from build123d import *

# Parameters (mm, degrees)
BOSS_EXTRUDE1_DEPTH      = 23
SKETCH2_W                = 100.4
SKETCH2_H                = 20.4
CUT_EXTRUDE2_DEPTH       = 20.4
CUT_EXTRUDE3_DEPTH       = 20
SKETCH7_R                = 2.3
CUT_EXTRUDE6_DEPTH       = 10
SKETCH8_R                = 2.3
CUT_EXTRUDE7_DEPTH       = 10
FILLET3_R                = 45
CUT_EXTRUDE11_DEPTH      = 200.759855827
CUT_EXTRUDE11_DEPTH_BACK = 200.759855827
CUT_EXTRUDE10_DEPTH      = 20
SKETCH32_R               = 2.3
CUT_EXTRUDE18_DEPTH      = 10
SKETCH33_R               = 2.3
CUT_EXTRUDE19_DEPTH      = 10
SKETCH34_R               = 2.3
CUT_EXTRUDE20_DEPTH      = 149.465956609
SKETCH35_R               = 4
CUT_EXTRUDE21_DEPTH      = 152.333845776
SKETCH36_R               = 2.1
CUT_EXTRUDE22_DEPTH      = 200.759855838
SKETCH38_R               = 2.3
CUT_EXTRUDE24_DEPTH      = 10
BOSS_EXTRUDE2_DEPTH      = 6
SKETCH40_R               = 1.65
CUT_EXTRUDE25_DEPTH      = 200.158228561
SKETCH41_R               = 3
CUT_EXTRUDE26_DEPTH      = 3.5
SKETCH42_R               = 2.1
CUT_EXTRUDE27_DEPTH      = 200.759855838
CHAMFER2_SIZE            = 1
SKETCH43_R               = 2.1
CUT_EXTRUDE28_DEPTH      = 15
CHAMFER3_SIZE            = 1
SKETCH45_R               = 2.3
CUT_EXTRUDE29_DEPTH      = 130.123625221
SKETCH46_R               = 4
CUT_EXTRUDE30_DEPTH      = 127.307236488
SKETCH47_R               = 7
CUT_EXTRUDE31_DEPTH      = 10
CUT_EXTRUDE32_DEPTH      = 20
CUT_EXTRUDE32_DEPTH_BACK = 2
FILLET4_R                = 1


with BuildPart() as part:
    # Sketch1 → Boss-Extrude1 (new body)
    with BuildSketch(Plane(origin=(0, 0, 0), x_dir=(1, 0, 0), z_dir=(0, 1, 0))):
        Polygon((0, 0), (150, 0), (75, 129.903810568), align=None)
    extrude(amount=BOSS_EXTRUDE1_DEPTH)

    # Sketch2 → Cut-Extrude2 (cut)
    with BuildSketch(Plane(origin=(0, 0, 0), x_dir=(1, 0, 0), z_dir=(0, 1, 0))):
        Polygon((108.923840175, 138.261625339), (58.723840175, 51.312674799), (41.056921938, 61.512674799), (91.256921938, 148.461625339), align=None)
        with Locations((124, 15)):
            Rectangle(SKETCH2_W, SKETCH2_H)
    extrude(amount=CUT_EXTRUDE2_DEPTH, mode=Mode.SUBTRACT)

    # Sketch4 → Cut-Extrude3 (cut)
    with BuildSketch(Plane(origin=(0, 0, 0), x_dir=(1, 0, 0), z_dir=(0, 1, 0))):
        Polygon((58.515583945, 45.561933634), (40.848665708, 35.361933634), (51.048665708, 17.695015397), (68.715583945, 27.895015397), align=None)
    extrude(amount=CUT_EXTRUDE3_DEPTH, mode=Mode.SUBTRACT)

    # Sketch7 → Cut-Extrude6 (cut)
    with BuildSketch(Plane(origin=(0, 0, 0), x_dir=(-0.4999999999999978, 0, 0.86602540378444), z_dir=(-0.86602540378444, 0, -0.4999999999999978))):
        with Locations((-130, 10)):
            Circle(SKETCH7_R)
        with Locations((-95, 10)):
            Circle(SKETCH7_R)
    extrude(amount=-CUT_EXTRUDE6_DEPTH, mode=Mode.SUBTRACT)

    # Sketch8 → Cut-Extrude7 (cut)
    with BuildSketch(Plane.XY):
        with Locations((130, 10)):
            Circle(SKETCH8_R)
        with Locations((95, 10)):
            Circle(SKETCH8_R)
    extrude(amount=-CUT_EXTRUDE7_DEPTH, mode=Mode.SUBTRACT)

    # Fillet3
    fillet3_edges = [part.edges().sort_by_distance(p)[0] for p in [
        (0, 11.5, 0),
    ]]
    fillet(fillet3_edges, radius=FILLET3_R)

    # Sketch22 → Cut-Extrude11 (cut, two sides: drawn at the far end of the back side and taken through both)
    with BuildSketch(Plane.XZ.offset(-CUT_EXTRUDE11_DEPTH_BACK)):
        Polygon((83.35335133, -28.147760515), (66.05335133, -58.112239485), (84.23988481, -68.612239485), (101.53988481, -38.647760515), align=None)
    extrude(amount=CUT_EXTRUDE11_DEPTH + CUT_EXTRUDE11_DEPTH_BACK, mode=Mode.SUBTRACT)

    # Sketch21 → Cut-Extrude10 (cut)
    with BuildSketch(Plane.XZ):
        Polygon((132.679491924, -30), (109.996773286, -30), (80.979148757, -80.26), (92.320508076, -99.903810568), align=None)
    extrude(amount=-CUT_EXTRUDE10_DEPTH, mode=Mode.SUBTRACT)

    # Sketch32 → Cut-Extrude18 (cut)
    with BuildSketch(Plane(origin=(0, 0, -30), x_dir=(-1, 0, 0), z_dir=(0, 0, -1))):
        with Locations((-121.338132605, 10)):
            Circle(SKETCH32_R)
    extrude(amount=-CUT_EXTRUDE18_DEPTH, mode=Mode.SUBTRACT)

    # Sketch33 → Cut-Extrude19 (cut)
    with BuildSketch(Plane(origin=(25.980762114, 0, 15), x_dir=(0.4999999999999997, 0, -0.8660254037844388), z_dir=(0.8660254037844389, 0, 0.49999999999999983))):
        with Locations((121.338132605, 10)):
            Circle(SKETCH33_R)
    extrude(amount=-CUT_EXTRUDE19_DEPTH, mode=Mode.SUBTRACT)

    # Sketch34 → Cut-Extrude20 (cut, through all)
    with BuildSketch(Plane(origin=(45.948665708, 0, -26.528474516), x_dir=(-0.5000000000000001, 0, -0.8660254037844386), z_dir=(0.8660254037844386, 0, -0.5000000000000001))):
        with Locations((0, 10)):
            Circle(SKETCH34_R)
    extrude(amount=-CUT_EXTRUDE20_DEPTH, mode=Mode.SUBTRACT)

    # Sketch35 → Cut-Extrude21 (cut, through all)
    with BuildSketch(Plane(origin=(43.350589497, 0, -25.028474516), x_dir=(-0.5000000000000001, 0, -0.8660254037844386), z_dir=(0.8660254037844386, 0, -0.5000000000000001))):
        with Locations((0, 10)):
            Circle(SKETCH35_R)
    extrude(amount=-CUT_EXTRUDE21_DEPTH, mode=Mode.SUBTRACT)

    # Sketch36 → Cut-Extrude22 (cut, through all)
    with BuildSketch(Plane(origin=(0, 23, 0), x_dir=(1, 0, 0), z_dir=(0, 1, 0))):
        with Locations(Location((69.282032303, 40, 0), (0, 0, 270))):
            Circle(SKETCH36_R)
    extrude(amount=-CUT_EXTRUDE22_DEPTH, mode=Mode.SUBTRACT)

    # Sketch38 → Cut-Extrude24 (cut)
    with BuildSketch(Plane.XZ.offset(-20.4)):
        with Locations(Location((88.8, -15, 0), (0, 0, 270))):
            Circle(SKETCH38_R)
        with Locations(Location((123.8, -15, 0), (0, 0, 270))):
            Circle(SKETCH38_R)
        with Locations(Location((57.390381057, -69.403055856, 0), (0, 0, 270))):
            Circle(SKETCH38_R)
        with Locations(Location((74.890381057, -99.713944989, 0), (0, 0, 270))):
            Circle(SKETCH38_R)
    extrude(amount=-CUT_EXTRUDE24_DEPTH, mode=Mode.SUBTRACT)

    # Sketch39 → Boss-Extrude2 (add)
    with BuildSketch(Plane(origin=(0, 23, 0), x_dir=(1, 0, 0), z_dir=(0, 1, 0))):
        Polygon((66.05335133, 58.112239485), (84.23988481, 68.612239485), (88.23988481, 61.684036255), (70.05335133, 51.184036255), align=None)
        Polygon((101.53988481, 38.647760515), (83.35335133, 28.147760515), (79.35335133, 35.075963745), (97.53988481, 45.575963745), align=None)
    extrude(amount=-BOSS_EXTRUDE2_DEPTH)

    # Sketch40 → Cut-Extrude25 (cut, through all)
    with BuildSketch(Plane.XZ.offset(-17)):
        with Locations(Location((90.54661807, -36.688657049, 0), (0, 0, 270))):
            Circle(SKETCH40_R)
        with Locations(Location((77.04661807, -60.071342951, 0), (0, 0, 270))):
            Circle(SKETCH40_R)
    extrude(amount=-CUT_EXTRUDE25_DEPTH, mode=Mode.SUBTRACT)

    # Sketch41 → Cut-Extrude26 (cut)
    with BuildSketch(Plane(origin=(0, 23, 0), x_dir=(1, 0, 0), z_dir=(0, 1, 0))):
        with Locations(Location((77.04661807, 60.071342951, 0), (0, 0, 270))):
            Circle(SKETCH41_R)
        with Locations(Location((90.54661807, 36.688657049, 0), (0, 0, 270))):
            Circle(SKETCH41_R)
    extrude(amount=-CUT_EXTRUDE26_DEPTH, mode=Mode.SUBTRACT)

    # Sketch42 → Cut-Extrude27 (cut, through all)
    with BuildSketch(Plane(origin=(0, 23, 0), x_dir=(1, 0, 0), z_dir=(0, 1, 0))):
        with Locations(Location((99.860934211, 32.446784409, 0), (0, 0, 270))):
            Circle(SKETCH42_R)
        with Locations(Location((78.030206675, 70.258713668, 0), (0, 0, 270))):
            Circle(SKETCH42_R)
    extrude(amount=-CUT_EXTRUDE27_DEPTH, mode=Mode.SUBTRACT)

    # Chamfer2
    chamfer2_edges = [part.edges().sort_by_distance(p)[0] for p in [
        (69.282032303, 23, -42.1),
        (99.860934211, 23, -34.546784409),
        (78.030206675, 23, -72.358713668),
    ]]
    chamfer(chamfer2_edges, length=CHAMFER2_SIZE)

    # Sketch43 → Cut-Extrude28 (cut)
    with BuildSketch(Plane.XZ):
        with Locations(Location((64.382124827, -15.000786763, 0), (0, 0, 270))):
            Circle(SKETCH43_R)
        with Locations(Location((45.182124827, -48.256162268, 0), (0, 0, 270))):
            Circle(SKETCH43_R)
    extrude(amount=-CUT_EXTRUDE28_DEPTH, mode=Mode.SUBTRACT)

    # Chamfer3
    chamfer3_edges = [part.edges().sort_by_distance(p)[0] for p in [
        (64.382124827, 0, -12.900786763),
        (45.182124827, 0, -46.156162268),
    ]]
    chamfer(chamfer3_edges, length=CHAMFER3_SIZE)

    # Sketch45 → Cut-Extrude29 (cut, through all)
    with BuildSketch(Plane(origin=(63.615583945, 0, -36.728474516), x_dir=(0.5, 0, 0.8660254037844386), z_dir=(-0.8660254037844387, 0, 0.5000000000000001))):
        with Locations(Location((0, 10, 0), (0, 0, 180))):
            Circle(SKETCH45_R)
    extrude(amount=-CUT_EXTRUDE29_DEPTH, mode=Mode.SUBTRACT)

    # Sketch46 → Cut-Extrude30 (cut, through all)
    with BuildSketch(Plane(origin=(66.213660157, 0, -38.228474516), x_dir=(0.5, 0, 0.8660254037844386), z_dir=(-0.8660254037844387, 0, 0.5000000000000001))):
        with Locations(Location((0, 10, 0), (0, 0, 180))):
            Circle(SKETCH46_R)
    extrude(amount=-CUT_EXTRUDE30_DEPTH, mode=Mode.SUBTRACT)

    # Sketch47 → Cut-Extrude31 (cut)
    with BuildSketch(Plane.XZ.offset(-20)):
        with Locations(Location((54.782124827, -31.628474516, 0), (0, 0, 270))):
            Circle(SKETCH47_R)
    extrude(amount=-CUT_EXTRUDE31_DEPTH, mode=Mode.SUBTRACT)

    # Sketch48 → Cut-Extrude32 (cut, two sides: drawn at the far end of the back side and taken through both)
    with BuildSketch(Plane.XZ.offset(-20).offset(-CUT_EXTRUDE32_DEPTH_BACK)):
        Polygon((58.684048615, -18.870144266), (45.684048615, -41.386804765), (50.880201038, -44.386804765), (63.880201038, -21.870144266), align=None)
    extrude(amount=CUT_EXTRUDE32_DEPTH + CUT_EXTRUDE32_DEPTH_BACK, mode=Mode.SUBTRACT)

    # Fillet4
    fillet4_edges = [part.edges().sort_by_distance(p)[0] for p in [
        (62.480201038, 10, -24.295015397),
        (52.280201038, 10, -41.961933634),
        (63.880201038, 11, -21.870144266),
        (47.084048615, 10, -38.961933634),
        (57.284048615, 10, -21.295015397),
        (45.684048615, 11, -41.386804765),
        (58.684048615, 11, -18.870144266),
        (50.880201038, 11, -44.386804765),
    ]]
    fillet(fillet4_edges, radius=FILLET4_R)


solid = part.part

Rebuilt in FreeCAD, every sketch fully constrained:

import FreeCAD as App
import Part
import Sketcher
Q = App.Units.Quantity


def edges_at(feature, points):
    """Names of the edges that pass closest to the given points."""
    edges = feature.Shape.Edges
    near = lambda p: min(range(len(edges)), key=lambda i: edges[i].distToShape(Part.Vertex(*p))[0])
    return sorted({f"Edge{near(p) + 1}" for p in points})


def add_polygon(sketch, points):
    """Adds a closed chain of lines whose ends are joined by coincident constraints."""
    first, n = sketch.GeometryCount, len(points)
    for a, b in zip(points, points[1:] + points[:1]):
        sketch.addGeometry(Part.LineSegment(App.Vector(*a, 0), App.Vector(*b, 0)), False)
    for i in range(n):
        sketch.addConstraint(Sketcher.Constraint("Coincident", first + i, 2, first + (i + 1) % n, 1))

doc = App.newDocument("Part")
body = doc.addObject("PartDesign::Body", "Body")

sketch1 = body.newObject("Sketcher::SketchObject", "Sketch")
sketch1.AttachmentSupport = (doc.getObject("XZ_Plane"), [""])
sketch1.MapMode = "FlatFace"
add_polygon(sketch1, [(0, 0), (150, 0), (75, -129.903811)])
sketch1.addConstraint([
    Sketcher.Constraint("Horizontal", 0),
    Sketcher.Constraint("Coincident", 2, 2, -1, 1),
    Sketcher.Constraint("Equal", 1, 2),
    Sketcher.Constraint("DistanceX", 0, 1, 0, 2, 150.0),
    Sketcher.Constraint("Angle", 1, Q("-120 deg")),
])
pad1 = body.newObject("PartDesign::Pad", "Pad")
pad1.Profile = sketch1
pad1.Length = 23
pad1.Reversed = True

sketch2 = body.newObject("Sketcher::SketchObject", "Sketch001")
sketch2.AttachmentSupport = (doc.getObject("XZ_Plane"), [""])
sketch2.MapMode = "FlatFace"
add_polygon(sketch2, [(58.72384, -51.312675), (108.92384, -138.261625), (91.256922, -148.461625), (41.056922, -61.512675)])
add_polygon(sketch2, [(73.8, -25.2), (73.8, -4.8), (174.2, -4.8), (174.2, -25.2)])
sketch2.addConstraint([
    Sketcher.Constraint("Vertical", 4),
    Sketcher.Constraint("Horizontal", 5),
    Sketcher.Constraint("Vertical", 6),
    Sketcher.Constraint("Horizontal", 7),
    Sketcher.Constraint("Perpendicular", 0, 1),
    Sketcher.Constraint("Perpendicular", 1, 2),
    Sketcher.Constraint("Perpendicular", 2, 3),
    Sketcher.Constraint("Angle", 0, Q("-60 deg")),
    Sketcher.Constraint("DistanceX", 5, 1, 5, 2, 100.4),
    Sketcher.Constraint("DistanceY", 4, 1, 4, 2, 20.4),
    Sketcher.Constraint("Distance", 0, 100.4),
    Sketcher.Constraint("Distance", 1, 20.4),
    Sketcher.Constraint("DistanceX", -1, 1, 4, 2, 73.8),
    Sketcher.Constraint("DistanceY", 4, 2, -1, 1, 4.8),
    Sketcher.Constraint("DistanceX", -1, 1, 0, 2, 108.92384),
    Sketcher.Constraint("DistanceY", 0, 2, -1, 1, 138.261625),
])
pocket1 = body.newObject("PartDesign::Pocket", "Pocket")
pocket1.Profile = sketch2
pocket1.Length = 20.4

sketch3 = body.newObject("Sketcher::SketchObject", "Sketch002")
sketch3.AttachmentSupport = (doc.getObject("XZ_Plane"), [""])
sketch3.MapMode = "FlatFace"
add_polygon(sketch3, [(58.515584, -45.561934), (40.848666, -35.361934), (51.048666, -17.695015), (68.715584, -27.895015)])
sketch3.addConstraint([
    Sketcher.Constraint("Perpendicular", 0, 1),
    Sketcher.Constraint("Perpendicular", 1, 2),
    Sketcher.Constraint("Perpendicular", 2, 3),
    Sketcher.Constraint("Equal", 0, 1),
    Sketcher.Constraint("Angle", 0, Q("150 deg")),
    Sketcher.Constraint("Distance", 0, 20.4),
    Sketcher.Constraint("DistanceX", -1, 1, 0, 2, 40.848666),
    Sketcher.Constraint("DistanceY", 0, 2, -1, 1, 35.361934),
])
pocket2 = body.newObject("PartDesign::Pocket", "Pocket001")
pocket2.Profile = sketch3
pocket2.Length = 20

sketch4 = body.newObject("Sketcher::SketchObject", "Sketch003")
sketch4.Placement = App.Placement(App.Vector(0, 0, 0), App.Rotation(App.Vector(-0.5, 0, 0.866025404), App.Vector(0, 1, 0), App.Vector(-0.866025404, 0, -0.5), "ZXY"))
sketch4.addGeometry([
    Part.Circle(App.Vector(-130, 10, 0), App.Vector(0, 0, 1), 2.3),
    Part.Circle(App.Vector(-95, 10, 0), App.Vector(0, 0, 1), 2.3),
], False)
sketch4.addConstraint([
    Sketcher.Constraint("Equal", 0, 1),
    Sketcher.Constraint("Horizontal", 0, 3, 1, 3),
    Sketcher.Constraint("Diameter", 0, 4.6),
    Sketcher.Constraint("DistanceX", 0, 3, -1, 1, 130.0),
    Sketcher.Constraint("DistanceY", -1, 1, 0, 3, 10.0),
    Sketcher.Constraint("DistanceX", 1, 3, -1, 1, 95.0),
])
pocket3 = body.newObject("PartDesign::Pocket", "Pocket002")
pocket3.Profile = sketch4
pocket3.Length = 10

sketch5 = body.newObject("Sketcher::SketchObject", "Sketch004")
sketch5.AttachmentSupport = (doc.getObject("XY_Plane"), [""])
sketch5.MapMode = "FlatFace"
sketch5.addGeometry([
    Part.Circle(App.Vector(130, 10, 0), App.Vector(0, 0, 1), 2.3),
    Part.Circle(App.Vector(95, 10, 0), App.Vector(0, 0, 1), 2.3),
], False)
sketch5.addConstraint([
    Sketcher.Constraint("Equal", 0, 1),
    Sketcher.Constraint("Horizontal", 0, 3, 1, 3),
    Sketcher.Constraint("Diameter", 0, 4.6),
    Sketcher.Constraint("DistanceX", -1, 1, 0, 3, 130.0),
    Sketcher.Constraint("DistanceY", -1, 1, 0, 3, 10.0),
    Sketcher.Constraint("DistanceX", -1, 1, 1, 3, 95.0),
])
pocket4 = body.newObject("PartDesign::Pocket", "Pocket003")
pocket4.Profile = sketch5
pocket4.Length = 10
doc.recompute()

fillet = body.newObject("PartDesign::Fillet", "Fillet")
fillet.Base = (pocket4, edges_at(pocket4, [(0, 11.5, 0)]))
fillet.Radius = 45

sketch6 = body.newObject("Sketcher::SketchObject", "Sketch005")
sketch6.AttachmentSupport = (doc.getObject("XZ_Plane"), [""])
sketch6.MapMode = "FlatFace"
add_polygon(sketch6, [(83.353351, -28.147761), (66.053351, -58.112239), (84.239885, -68.612239), (101.539885, -38.647761)])
sketch6.addConstraint([
    Sketcher.Constraint("Perpendicular", 0, 1),
    Sketcher.Constraint("Perpendicular", 1, 2),
    Sketcher.Constraint("Perpendicular", 2, 3),
    Sketcher.Constraint("Angle", 0, Q("-120 deg")),
    Sketcher.Constraint("Distance", 1, 21.0),
    Sketcher.Constraint("Distance", 0, 34.6),
    Sketcher.Constraint("DistanceX", -1, 1, 0, 2, 66.053351),
    Sketcher.Constraint("DistanceY", 0, 2, -1, 1, 58.112239),
])
pocket5 = body.newObject("PartDesign::Pocket", "Pocket004")
pocket5.Profile = sketch6
pocket5.Type = "ThroughAll"
pocket5.Midplane = True

sketch7 = body.newObject("Sketcher::SketchObject", "Sketch006")
sketch7.AttachmentSupport = (doc.getObject("XZ_Plane"), [""])
sketch7.MapMode = "FlatFace"
add_polygon(sketch7, [(132.679492, -30), (109.996773, -30), (80.979149, -80.26), (92.320508, -99.903811)])
sketch7.addConstraint([
    Sketcher.Constraint("Horizontal", 0),
    Sketcher.Constraint("Parallel", 1, 3),
    Sketcher.Constraint("Angle", 1, Q("-120 deg")),
    Sketcher.Constraint("Angle", 2, Q("-60 deg")),
    Sketcher.Constraint("DistanceY", 0, 2, -1, 1, 30.0),
    Sketcher.Constraint("DistanceY", 1, 2, -1, 1, 80.26),
    Sketcher.Constraint("DistanceX", 0, 2, 0, 1, 22.682719),
    Sketcher.Constraint("DistanceX", -1, 1, 1, 2, 80.979149),
])
pocket6 = body.newObject("PartDesign::Pocket", "Pocket005")
pocket6.Profile = sketch7
pocket6.Length = 20

sketch8 = body.newObject("Sketcher::SketchObject", "Sketch007")
sketch8.AttachmentSupport = (doc.getObject("XY_Plane"), [""])
sketch8.MapMode = "FlatFace"
sketch8.AttachmentOffset = App.Placement(App.Vector(0, 0, -30), App.Rotation())
sketch8.addGeometry(Part.Circle(App.Vector(121.338133, 10, 0), App.Vector(0, 0, 1), 2.3), False)
sketch8.addConstraint([
    Sketcher.Constraint("Diameter", 0, 4.6),
    Sketcher.Constraint("DistanceY", -1, 1, 0, 3, 10.0),
    Sketcher.Constraint("DistanceX", -1, 1, 0, 3, 121.338133),
])
pocket7 = body.newObject("PartDesign::Pocket", "Pocket006")
pocket7.Profile = sketch8
pocket7.Length = 10
pocket7.Reversed = True

sketch9 = body.newObject("Sketcher::SketchObject", "Sketch008")
sketch9.Placement = App.Placement(App.Vector(25.980762, 0, 15), App.Rotation(App.Vector(0.5, 0, -0.866025404), App.Vector(0, 1, 0), App.Vector(0.866025404, 0, 0.5), "ZXY"))
sketch9.addGeometry(Part.Circle(App.Vector(121.338133, 10, 0), App.Vector(0, 0, 1), 2.3), False)
sketch9.addConstraint([
    Sketcher.Constraint("Diameter", 0, 4.6),
    Sketcher.Constraint("DistanceY", -1, 1, 0, 3, 10.0),
    Sketcher.Constraint("DistanceX", -1, 1, 0, 3, 121.338133),
])
pocket8 = body.newObject("PartDesign::Pocket", "Pocket007")
pocket8.Profile = sketch9
pocket8.Length = 10

sketch10 = body.newObject("Sketcher::SketchObject", "Sketch009")
sketch10.Placement = App.Placement(App.Vector(45.948666, 0, -26.528475), App.Rotation(App.Vector(-0.5, 0, -0.866025404), App.Vector(0, 1, 0), App.Vector(0.866025404, 0, -0.5), "ZXY"))
sketch10.addGeometry(Part.Circle(App.Vector(0, 10, 0), App.Vector(0, 0, 1), 2.3), False)
sketch10.addConstraint([
    Sketcher.Constraint("PointOnObject", 0, 3, -2),
    Sketcher.Constraint("Diameter", 0, 4.6),
    Sketcher.Constraint("DistanceY", -1, 1, 0, 3, 10.0),
])
pocket9 = body.newObject("PartDesign::Pocket", "Pocket008")
pocket9.Profile = sketch10
pocket9.Type = "ThroughAll"

sketch11 = body.newObject("Sketcher::SketchObject", "Sketch010")
sketch11.Placement = App.Placement(App.Vector(43.350589, 0, -25.028475), App.Rotation(App.Vector(-0.5, 0, -0.866025404), App.Vector(0, 1, 0), App.Vector(0.866025404, 0, -0.5), "ZXY"))
sketch11.addGeometry(Part.Circle(App.Vector(0, 10, 0), App.Vector(0, 0, 1), 4), False)
sketch11.addConstraint([
    Sketcher.Constraint("PointOnObject", 0, 3, -2),
    Sketcher.Constraint("Diameter", 0, 8.0),
    Sketcher.Constraint("DistanceY", -1, 1, 0, 3, 10.0),
])
pocket10 = body.newObject("PartDesign::Pocket", "Pocket009")
pocket10.Profile = sketch11
pocket10.Type = "ThroughAll"

sketch12 = body.newObject("Sketcher::SketchObject", "Sketch011")
sketch12.AttachmentSupport = (doc.getObject("XZ_Plane"), [""])
sketch12.MapMode = "FlatFace"
sketch12.AttachmentOffset = App.Placement(App.Vector(0, 0, -23), App.Rotation())
sketch12.addGeometry(Part.Circle(App.Vector(69.282032, -40, 0), App.Vector(0, 0, 1), 2.1), False)
sketch12.addConstraint([
    Sketcher.Constraint("Diameter", 0, 4.2),
    Sketcher.Constraint("DistanceY", 0, 3, -1, 1, 40.0),
    Sketcher.Constraint("DistanceX", -1, 1, 0, 3, 69.282032),
])
pocket11 = body.newObject("PartDesign::Pocket", "Pocket010")
pocket11.Profile = sketch12
pocket11.Type = "ThroughAll"
pocket11.Reversed = True

sketch13 = body.newObject("Sketcher::SketchObject", "Sketch012")
sketch13.AttachmentSupport = (doc.getObject("XZ_Plane"), [""])
sketch13.MapMode = "FlatFace"
sketch13.AttachmentOffset = App.Placement(App.Vector(0, 0, -20.4), App.Rotation())
sketch13.addGeometry([
    Part.Circle(App.Vector(88.8, -15, 0), App.Vector(0, 0, 1), 2.3),
    Part.Circle(App.Vector(123.8, -15, 0), App.Vector(0, 0, 1), 2.3),
    Part.Circle(App.Vector(57.390381, -69.403056, 0), App.Vector(0, 0, 1), 2.3),
    Part.Circle(App.Vector(74.890381, -99.713945, 0), App.Vector(0, 0, 1), 2.3),
], False)
sketch13.addConstraint([
    Sketcher.Constraint("Equal", 0, 1),
    Sketcher.Constraint("Equal", 1, 2),
    Sketcher.Constraint("Equal", 2, 3),
    Sketcher.Constraint("Horizontal", 0, 3, 1, 3),
    Sketcher.Constraint("Diameter", 0, 4.6),
    Sketcher.Constraint("DistanceY", 0, 3, -1, 1, 15.0),
    Sketcher.Constraint("DistanceX", 0, 3, 1, 3, 35.0),
    Sketcher.Constraint("DistanceX", -1, 1, 0, 3, 88.8),
    Sketcher.Constraint("DistanceX", 2, 3, 3, 3, 17.5),
    Sketcher.Constraint("DistanceX", -1, 1, 2, 3, 57.390381),
    Sketcher.Constraint("DistanceY", 3, 3, 2, 3, 30.310889),
    Sketcher.Constraint("DistanceY", 2, 3, -1, 1, 69.403056),
])
pocket12 = body.newObject("PartDesign::Pocket", "Pocket011")
pocket12.Profile = sketch13
pocket12.Length = 10

sketch14 = body.newObject("Sketcher::SketchObject", "Sketch013")
sketch14.AttachmentSupport = (doc.getObject("XZ_Plane"), [""])
sketch14.MapMode = "FlatFace"
sketch14.AttachmentOffset = App.Placement(App.Vector(0, 0, -23), App.Rotation())
add_polygon(sketch14, [(84.239885, -68.612239), (66.053351, -58.112239), (70.053351, -51.184036), (88.239885, -61.684036)])
add_polygon(sketch14, [(83.353351, -28.147761), (101.539885, -38.647761), (97.539885, -45.575964), (79.353351, -35.075964)])
sketch14.addConstraint([
    Sketcher.Constraint("Perpendicular", 0, 1),
    Sketcher.Constraint("Perpendicular", 1, 2),
    Sketcher.Constraint("Perpendicular", 2, 3),
    Sketcher.Constraint("Perpendicular", 3, 4),
    Sketcher.Constraint("Perpendicular", 4, 5),
    Sketcher.Constraint("Perpendicular", 5, 6),
    Sketcher.Constraint("Perpendicular", 6, 7),
    Sketcher.Constraint("Equal", 2, 4),
    Sketcher.Constraint("Equal", 3, 5),
    Sketcher.Constraint("Angle", 0, Q("150 deg")),
    Sketcher.Constraint("Distance", 0, 21.0),
    Sketcher.Constraint("Distance", 1, 8.0),
    Sketcher.Constraint("DistanceX", 2, 2, 4, 2, 13.3),
    Sketcher.Constraint("DistanceX", -1, 1, 0, 2, 66.053351),
    Sketcher.Constraint("DistanceY", 0, 2, -1, 1, 58.112239),
    Sketcher.Constraint("DistanceY", 4, 2, -1, 1, 38.647761),
])
pad2 = body.newObject("PartDesign::Pad", "Pad001")
pad2.Profile = sketch14
pad2.Length = 6

sketch15 = body.newObject("Sketcher::SketchObject", "Sketch014")
sketch15.AttachmentSupport = (doc.getObject("XZ_Plane"), [""])
sketch15.MapMode = "FlatFace"
sketch15.AttachmentOffset = App.Placement(App.Vector(0, 0, -17), App.Rotation())
sketch15.addGeometry([
    Part.Circle(App.Vector(90.546618, -36.688657, 0), App.Vector(0, 0, 1), 1.65),
    Part.Circle(App.Vector(77.046618, -60.071343, 0), App.Vector(0, 0, 1), 1.65),
], False)
sketch15.addConstraint([
    Sketcher.Constraint("Equal", 0, 1),
    Sketcher.Constraint("Diameter", 0, 3.3),
    Sketcher.Constraint("DistanceX", 1, 3, 0, 3, 13.5),
    Sketcher.Constraint("DistanceX", -1, 1, 0, 3, 90.546618),
    Sketcher.Constraint("DistanceY", 0, 3, -1, 1, 36.688657),
    Sketcher.Constraint("DistanceY", 1, 3, -1, 1, 60.071343),
])
pocket13 = body.newObject("PartDesign::Pocket", "Pocket012")
pocket13.Profile = sketch15
pocket13.Type = "ThroughAll"

sketch16 = body.newObject("Sketcher::SketchObject", "Sketch015")
sketch16.AttachmentSupport = (doc.getObject("XZ_Plane"), [""])
sketch16.MapMode = "FlatFace"
sketch16.AttachmentOffset = App.Placement(App.Vector(0, 0, -23), App.Rotation())
sketch16.addGeometry([
    Part.Circle(App.Vector(77.046618, -60.071343, 0), App.Vector(0, 0, 1), 3),
    Part.Circle(App.Vector(90.546618, -36.688657, 0), App.Vector(0, 0, 1), 3),
], False)
sketch16.addConstraint([
    Sketcher.Constraint("Equal", 0, 1),
    Sketcher.Constraint("Diameter", 0, 6.0),
    Sketcher.Constraint("DistanceX", 0, 3, 1, 3, 13.5),
    Sketcher.Constraint("DistanceX", -1, 1, 0, 3, 77.046618),
    Sketcher.Constraint("DistanceY", 0, 3, -1, 1, 60.071343),
    Sketcher.Constraint("DistanceY", 1, 3, -1, 1, 36.688657),
])
pocket14 = body.newObject("PartDesign::Pocket", "Pocket013")
pocket14.Profile = sketch16
pocket14.Length = 3.5
pocket14.Reversed = True

sketch17 = body.newObject("Sketcher::SketchObject", "Sketch016")
sketch17.AttachmentSupport = (doc.getObject("XZ_Plane"), [""])
sketch17.MapMode = "FlatFace"
sketch17.AttachmentOffset = App.Placement(App.Vector(0, 0, -23), App.Rotation())
sketch17.addGeometry([
    Part.Circle(App.Vector(99.860934, -32.446784, 0), App.Vector(0, 0, 1), 2.1),
    Part.Circle(App.Vector(78.030207, -70.258714, 0), App.Vector(0, 0, 1), 2.1),
], False)
sketch17.addConstraint([
    Sketcher.Constraint("Equal", 0, 1),
    Sketcher.Constraint("Diameter", 0, 4.2),
    Sketcher.Constraint("DistanceY", 1, 3, 0, 3, 37.811929),
    Sketcher.Constraint("DistanceX", -1, 1, 0, 3, 99.860934),
    Sketcher.Constraint("DistanceY", 0, 3, -1, 1, 32.446784),
    Sketcher.Constraint("DistanceX", -1, 1, 1, 3, 78.030207),
])
pocket15 = body.newObject("PartDesign::Pocket", "Pocket014")
pocket15.Profile = sketch17
pocket15.Type = "ThroughAll"
pocket15.Reversed = True
doc.recompute()

chamfer = body.newObject("PartDesign::Chamfer", "Chamfer")
chamfer.Base = (pocket15, edges_at(pocket15, [(69.282, 23, -42.1), (99.861, 23, -34.547), (78.03, 23, -72.359)]))
chamfer.Size = 1

sketch18 = body.newObject("Sketcher::SketchObject", "Sketch017")
sketch18.AttachmentSupport = (doc.getObject("XZ_Plane"), [""])
sketch18.MapMode = "FlatFace"
sketch18.addGeometry([
    Part.Circle(App.Vector(64.382125, -15.000787, 0), App.Vector(0, 0, 1), 2.1),
    Part.Circle(App.Vector(45.182125, -48.256162, 0), App.Vector(0, 0, 1), 2.1),
], False)
sketch18.addConstraint([
    Sketcher.Constraint("Equal", 0, 1),
    Sketcher.Constraint("Diameter", 0, 4.2),
    Sketcher.Constraint("DistanceX", 1, 3, 0, 3, 19.2),
    Sketcher.Constraint("DistanceX", -1, 1, 0, 3, 64.382125),
    Sketcher.Constraint("DistanceY", 0, 3, -1, 1, 15.000787),
    Sketcher.Constraint("DistanceY", 1, 3, -1, 1, 48.256162),
])
pocket16 = body.newObject("PartDesign::Pocket", "Pocket015")
pocket16.Profile = sketch18
pocket16.Length = 15
doc.recompute()

chamfer2 = body.newObject("PartDesign::Chamfer", "Chamfer001")
chamfer2.Base = (pocket16, edges_at(pocket16, [(64.382, 0, -12.901), (45.182, 0, -46.156)]))
chamfer2.Size = 1

sketch19 = body.newObject("Sketcher::SketchObject", "Sketch018")
sketch19.Placement = App.Placement(App.Vector(63.615584, 0, -36.728475), App.Rotation(App.Vector(0.5, 0, 0.866025404), App.Vector(0, 1, 0), App.Vector(-0.866025404, 0, 0.5), "ZXY"))
sketch19.addGeometry(Part.Circle(App.Vector(0, 10, 0), App.Vector(0, 0, 1), 2.3), False)
sketch19.addConstraint([
    Sketcher.Constraint("PointOnObject", 0, 3, -2),
    Sketcher.Constraint("Diameter", 0, 4.6),
    Sketcher.Constraint("DistanceY", -1, 1, 0, 3, 10.0),
])
pocket17 = body.newObject("PartDesign::Pocket", "Pocket016")
pocket17.Profile = sketch19
pocket17.Type = "ThroughAll"

sketch20 = body.newObject("Sketcher::SketchObject", "Sketch019")
sketch20.Placement = App.Placement(App.Vector(66.21366, 0, -38.228475), App.Rotation(App.Vector(0.5, 0, 0.866025404), App.Vector(0, 1, 0), App.Vector(-0.866025404, 0, 0.5), "ZXY"))
sketch20.addGeometry(Part.Circle(App.Vector(0, 10, 0), App.Vector(0, 0, 1), 4), False)
sketch20.addConstraint([
    Sketcher.Constraint("PointOnObject", 0, 3, -2),
    Sketcher.Constraint("Diameter", 0, 8.0),
    Sketcher.Constraint("DistanceY", -1, 1, 0, 3, 10.0),
])
pocket18 = body.newObject("PartDesign::Pocket", "Pocket017")
pocket18.Profile = sketch20
pocket18.Type = "ThroughAll"

sketch21 = body.newObject("Sketcher::SketchObject", "Sketch020")
sketch21.AttachmentSupport = (doc.getObject("XZ_Plane"), [""])
sketch21.MapMode = "FlatFace"
sketch21.AttachmentOffset = App.Placement(App.Vector(0, 0, -20), App.Rotation())
sketch21.addGeometry(Part.Circle(App.Vector(54.782125, -31.628475, 0), App.Vector(0, 0, 1), 7), False)
sketch21.addConstraint([
    Sketcher.Constraint("Diameter", 0, 14.0),
    Sketcher.Constraint("DistanceX", -1, 1, 0, 3, 54.782125),
    Sketcher.Constraint("DistanceY", 0, 3, -1, 1, 31.628475),
])
pocket19 = body.newObject("PartDesign::Pocket", "Pocket018")
pocket19.Profile = sketch21
pocket19.Length = 10

sketch22 = body.newObject("Sketcher::SketchObject", "Sketch021")
sketch22.AttachmentSupport = (doc.getObject("XZ_Plane"), [""])
sketch22.MapMode = "FlatFace"
sketch22.AttachmentOffset = App.Placement(App.Vector(0, 0, -20), App.Rotation())
add_polygon(sketch22, [(58.684049, -18.870144), (45.684049, -41.386805), (50.880201, -44.386805), (63.880201, -21.870144)])
sketch22.addConstraint([
    Sketcher.Constraint("Perpendicular", 0, 1),
    Sketcher.Constraint("Perpendicular", 1, 2),
    Sketcher.Constraint("Perpendicular", 2, 3),
    Sketcher.Constraint("Angle", 0, Q("-120 deg")),
    Sketcher.Constraint("Distance", 0, 26.0),
    Sketcher.Constraint("Distance", 1, 6.0),
    Sketcher.Constraint("DistanceX", -1, 1, 1, 2, 50.880201),
    Sketcher.Constraint("DistanceY", 0, 2, -1, 1, 41.386805),
])
pocket20 = body.newObject("PartDesign::Pocket", "Pocket019")
pocket20.Profile = sketch22
pocket20.Type = "TwoLengths"
pocket20.Length = 20
pocket20.Length2 = 2
pocket20.Reversed = True
doc.recompute()

fillet2 = body.newObject("PartDesign::Fillet", "Fillet001")
fillet2.Base = (pocket20, edges_at(pocket20, [
    (62.48, 10, -24.295),
    (52.28, 10, -41.962),
    (63.88, 11, -21.87),
    (47.084, 10, -38.962),
    (57.284, 10, -21.295),
    (45.684, 11, -41.387),
    (58.684, 11, -18.87),
    (50.88, 11, -44.387),
]))
fillet2.Radius = 1

doc.recompute()
